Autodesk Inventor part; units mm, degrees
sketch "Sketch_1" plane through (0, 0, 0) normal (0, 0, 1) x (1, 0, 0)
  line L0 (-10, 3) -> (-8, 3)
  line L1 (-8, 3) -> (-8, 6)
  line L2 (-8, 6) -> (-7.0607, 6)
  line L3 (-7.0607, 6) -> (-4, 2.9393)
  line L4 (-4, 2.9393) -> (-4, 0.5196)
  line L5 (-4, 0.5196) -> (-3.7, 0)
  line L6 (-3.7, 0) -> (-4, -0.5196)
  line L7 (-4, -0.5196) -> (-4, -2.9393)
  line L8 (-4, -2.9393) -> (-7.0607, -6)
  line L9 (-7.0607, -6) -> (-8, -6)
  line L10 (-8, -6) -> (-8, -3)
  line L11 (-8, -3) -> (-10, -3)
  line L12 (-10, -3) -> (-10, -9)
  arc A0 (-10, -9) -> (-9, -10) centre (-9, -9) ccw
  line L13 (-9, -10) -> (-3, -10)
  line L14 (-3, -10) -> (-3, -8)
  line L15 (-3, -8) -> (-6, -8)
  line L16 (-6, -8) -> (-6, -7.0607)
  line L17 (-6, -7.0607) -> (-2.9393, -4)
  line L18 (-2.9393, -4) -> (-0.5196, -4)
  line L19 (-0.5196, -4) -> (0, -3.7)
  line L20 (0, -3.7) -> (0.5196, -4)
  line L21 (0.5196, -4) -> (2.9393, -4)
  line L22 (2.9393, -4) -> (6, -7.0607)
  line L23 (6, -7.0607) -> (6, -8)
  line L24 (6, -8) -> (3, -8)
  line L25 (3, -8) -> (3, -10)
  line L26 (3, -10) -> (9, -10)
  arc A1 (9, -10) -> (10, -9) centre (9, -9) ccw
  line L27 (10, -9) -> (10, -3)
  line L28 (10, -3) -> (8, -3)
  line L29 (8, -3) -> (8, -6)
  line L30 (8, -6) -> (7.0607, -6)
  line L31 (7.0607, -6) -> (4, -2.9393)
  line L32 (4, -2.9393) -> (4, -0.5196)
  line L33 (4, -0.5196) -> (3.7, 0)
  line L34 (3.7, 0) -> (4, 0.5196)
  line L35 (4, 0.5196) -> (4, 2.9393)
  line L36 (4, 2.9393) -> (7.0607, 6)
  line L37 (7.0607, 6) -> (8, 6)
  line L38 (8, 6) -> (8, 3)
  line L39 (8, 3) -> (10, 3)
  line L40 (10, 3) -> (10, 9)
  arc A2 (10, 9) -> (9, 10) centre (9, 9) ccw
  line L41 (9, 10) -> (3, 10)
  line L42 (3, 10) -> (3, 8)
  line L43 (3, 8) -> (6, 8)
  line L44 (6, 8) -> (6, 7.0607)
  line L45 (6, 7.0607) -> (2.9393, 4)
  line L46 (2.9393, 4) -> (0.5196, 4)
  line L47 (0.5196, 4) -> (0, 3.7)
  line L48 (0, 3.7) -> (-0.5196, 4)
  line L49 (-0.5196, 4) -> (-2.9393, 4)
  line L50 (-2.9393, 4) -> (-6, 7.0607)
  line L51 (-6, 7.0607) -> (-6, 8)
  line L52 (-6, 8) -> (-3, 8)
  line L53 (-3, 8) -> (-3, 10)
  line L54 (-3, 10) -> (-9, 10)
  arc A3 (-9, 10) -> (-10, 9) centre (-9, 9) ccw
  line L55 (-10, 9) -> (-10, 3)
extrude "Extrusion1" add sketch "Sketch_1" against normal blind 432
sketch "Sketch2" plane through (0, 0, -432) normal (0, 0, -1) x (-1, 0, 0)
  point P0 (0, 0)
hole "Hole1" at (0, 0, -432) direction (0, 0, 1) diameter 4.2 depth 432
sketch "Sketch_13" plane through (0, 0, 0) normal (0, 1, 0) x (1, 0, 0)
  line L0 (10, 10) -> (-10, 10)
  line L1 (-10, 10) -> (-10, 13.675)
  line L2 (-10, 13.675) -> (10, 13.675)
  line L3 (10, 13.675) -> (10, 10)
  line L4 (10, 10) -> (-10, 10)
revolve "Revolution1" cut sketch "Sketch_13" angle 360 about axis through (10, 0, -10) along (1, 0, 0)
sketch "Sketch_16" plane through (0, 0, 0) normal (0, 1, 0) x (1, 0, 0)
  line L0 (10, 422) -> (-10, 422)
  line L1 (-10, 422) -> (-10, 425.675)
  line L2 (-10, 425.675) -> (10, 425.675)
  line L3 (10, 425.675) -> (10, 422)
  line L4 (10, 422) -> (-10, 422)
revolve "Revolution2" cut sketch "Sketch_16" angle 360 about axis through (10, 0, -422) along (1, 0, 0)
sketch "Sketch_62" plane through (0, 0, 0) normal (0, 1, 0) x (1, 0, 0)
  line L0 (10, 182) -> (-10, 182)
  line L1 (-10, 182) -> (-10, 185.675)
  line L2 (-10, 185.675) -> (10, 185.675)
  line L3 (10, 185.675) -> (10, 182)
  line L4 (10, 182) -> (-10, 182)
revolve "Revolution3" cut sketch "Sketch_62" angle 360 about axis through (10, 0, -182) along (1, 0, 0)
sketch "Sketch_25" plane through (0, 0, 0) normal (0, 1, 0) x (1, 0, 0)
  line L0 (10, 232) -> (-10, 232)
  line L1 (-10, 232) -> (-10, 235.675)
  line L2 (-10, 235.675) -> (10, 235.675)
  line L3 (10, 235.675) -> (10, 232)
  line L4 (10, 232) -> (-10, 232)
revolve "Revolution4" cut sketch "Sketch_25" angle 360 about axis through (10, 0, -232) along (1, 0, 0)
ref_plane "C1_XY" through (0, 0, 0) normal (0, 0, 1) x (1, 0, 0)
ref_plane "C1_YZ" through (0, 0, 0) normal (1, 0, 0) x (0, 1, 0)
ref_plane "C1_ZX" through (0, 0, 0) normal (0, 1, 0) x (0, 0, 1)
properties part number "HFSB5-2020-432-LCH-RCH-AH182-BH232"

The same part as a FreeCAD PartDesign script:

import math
import FreeCAD as App
import Part
import Sketcher

V = App.Vector
Q = App.Units.Quantity

doc = App.newDocument("Part")
body = doc.addObject("PartDesign::Body", "Body")

sketch1 = body.newObject("Sketcher::SketchObject", "Sketch")
sketch1.AttachmentSupport = (doc.getObject("XY_Plane"), [""])
sketch1.MapMode = "FlatFace"
sketch1.addGeometry(Part.LineSegment(V(-10, 9, 0), V(-10, 3, 0)), False)
sketch1.addGeometry(Part.LineSegment(V(-10, 3, 0), V(-8, 3, 0)), False)
sketch1.addGeometry(Part.LineSegment(V(-8, 3, 0), V(-8, 6, 0)), False)
sketch1.addGeometry(Part.LineSegment(V(-8, 6, 0), V(-7.0607, 6, 0)), False)
sketch1.addGeometry(Part.LineSegment(V(-7.0607, 6, 0), V(-4, 2.9393, 0)), False)
sketch1.addGeometry(Part.LineSegment(V(-4, 2.9393, 0), V(-4, 0.5196, 0)), False)
sketch1.addGeometry(Part.LineSegment(V(-4, 0.5196, 0), V(-3.7, 0, 0)), False)
sketch1.addGeometry(Part.LineSegment(V(-3.7, 0, 0), V(-4, -0.5196, 0)), False)
sketch1.addGeometry(Part.LineSegment(V(-4, -0.5196, 0), V(-4, -2.9393, 0)), False)
sketch1.addGeometry(Part.LineSegment(V(-4, -2.9393, 0), V(-7.0607, -6, 0)), False)
sketch1.addGeometry(Part.LineSegment(V(-7.0607, -6, 0), V(-8, -6, 0)), False)
sketch1.addGeometry(Part.LineSegment(V(-8, -6, 0), V(-8, -3, 0)), False)
sketch1.addGeometry(Part.LineSegment(V(-8, -3, 0), V(-10, -3, 0)), False)
sketch1.addGeometry(Part.LineSegment(V(-10, -3, 0), V(-10, -9, 0)), False)
sketch1.addGeometry(Part.ArcOfCircle(Part.Circle(V(-9, -9, 0), V(0, 0, 1), 1), math.radians(180), math.radians(270)), False)
sketch1.addGeometry(Part.LineSegment(V(-9, -10, 0), V(-3, -10, 0)), False)
sketch1.addGeometry(Part.LineSegment(V(-3, -10, 0), V(-3, -8, 0)), False)
sketch1.addGeometry(Part.LineSegment(V(-3, -8, 0), V(-6, -8, 0)), False)
sketch1.addGeometry(Part.LineSegment(V(-6, -8, 0), V(-6, -7.0607, 0)), False)
sketch1.addGeometry(Part.LineSegment(V(-6, -7.0607, 0), V(-2.9393, -4, 0)), False)
sketch1.addGeometry(Part.LineSegment(V(-2.9393, -4, 0), V(-0.5196, -4, 0)), False)
sketch1.addGeometry(Part.LineSegment(V(-0.5196, -4, 0), V(0, -3.7, 0)), False)
sketch1.addGeometry(Part.LineSegment(V(0, -3.7, 0), V(0.5196, -4, 0)), False)
sketch1.addGeometry(Part.LineSegment(V(0.5196, -4, 0), V(2.9393, -4, 0)), False)
sketch1.addGeometry(Part.LineSegment(V(2.9393, -4, 0), V(6, -7.0607, 0)), False)
sketch1.addGeometry(Part.LineSegment(V(6, -7.0607, 0), V(6, -8, 0)), False)
sketch1.addGeometry(Part.LineSegment(V(6, -8, 0), V(3, -8, 0)), False)
sketch1.addGeometry(Part.LineSegment(V(3, -8, 0), V(3, -10, 0)), False)
sketch1.addGeometry(Part.LineSegment(V(3, -10, 0), V(9, -10, 0)), False)
sketch1.addGeometry(Part.ArcOfCircle(Part.Circle(V(9, -9, 0), V(0, 0, 1), 1), math.radians(-90), math.radians(0)), False)
sketch1.addGeometry(Part.LineSegment(V(10, -9, 0), V(10, -3, 0)), False)
sketch1.addGeometry(Part.LineSegment(V(10, -3, 0), V(8, -3, 0)), False)
sketch1.addGeometry(Part.LineSegment(V(8, -3, 0), V(8, -6, 0)), False)
sketch1.addGeometry(Part.LineSegment(V(8, -6, 0), V(7.0607, -6, 0)), False)
sketch1.addGeometry(Part.LineSegment(V(7.0607, -6, 0), V(4, -2.9393, 0)), False)
sketch1.addGeometry(Part.LineSegment(V(4, -2.9393, 0), V(4, -0.5196, 0)), False)
sketch1.addGeometry(Part.LineSegment(V(4, -0.5196, 0), V(3.7, 0, 0)), False)
sketch1.addGeometry(Part.LineSegment(V(3.7, 0, 0), V(4, 0.5196, 0)), False)
sketch1.addGeometry(Part.LineSegment(V(4, 0.5196, 0), V(4, 2.9393, 0)), False)
sketch1.addGeometry(Part.LineSegment(V(4, 2.9393, 0), V(7.0607, 6, 0)), False)
sketch1.addGeometry(Part.LineSegment(V(7.0607, 6, 0), V(8, 6, 0)), False)
sketch1.addGeometry(Part.LineSegment(V(8, 6, 0), V(8, 3, 0)), False)
sketch1.addGeometry(Part.LineSegment(V(8, 3, 0), V(10, 3, 0)), False)
sketch1.addGeometry(Part.LineSegment(V(10, 3, 0), V(10, 9, 0)), False)
sketch1.addGeometry(Part.ArcOfCircle(Part.Circle(V(9, 9, 0), V(0, 0, 1), 1), math.radians(0), math.radians(90)), False)
sketch1.addGeometry(Part.LineSegment(V(9, 10, 0), V(3, 10, 0)), False)
sketch1.addGeometry(Part.LineSegment(V(3, 10, 0), V(3, 8, 0)), False)
sketch1.addGeometry(Part.LineSegment(V(3, 8, 0), V(6, 8, 0)), False)
sketch1.addGeometry(Part.LineSegment(V(6, 8, 0), V(6, 7.0607, 0)), False)
sketch1.addGeometry(Part.LineSegment(V(6, 7.0607, 0), V(2.9393, 4, 0)), False)
sketch1.addGeometry(Part.LineSegment(V(2.9393, 4, 0), V(0.5196, 4, 0)), False)
sketch1.addGeometry(Part.LineSegment(V(0.5196, 4, 0), V(0, 3.7, 0)), False)
sketch1.addGeometry(Part.LineSegment(V(0, 3.7, 0), V(-0.5196, 4, 0)), False)
sketch1.addGeometry(Part.LineSegment(V(-0.5196, 4, 0), V(-2.9393, 4, 0)), False)
sketch1.addGeometry(Part.LineSegment(V(-2.9393, 4, 0), V(-6, 7.0607, 0)), False)
sketch1.addGeometry(Part.LineSegment(V(-6, 7.0607, 0), V(-6, 8, 0)), False)
sketch1.addGeometry(Part.LineSegment(V(-6, 8, 0), V(-3, 8, 0)), False)
sketch1.addGeometry(Part.LineSegment(V(-3, 8, 0), V(-3, 10, 0)), False)
sketch1.addGeometry(Part.LineSegment(V(-3, 10, 0), V(-9, 10, 0)), False)
sketch1.addGeometry(Part.ArcOfCircle(Part.Circle(V(-9, 9, 0), V(0, 0, 1), 1), math.radians(90), math.radians(180)), False)
sketch1.addConstraint(Sketcher.Constraint("Coincident", 0, 2, 1, 1))
sketch1.addConstraint(Sketcher.Constraint("Coincident", 1, 2, 2, 1))
sketch1.addConstraint(Sketcher.Constraint("Coincident", 2, 2, 3, 1))
sketch1.addConstraint(Sketcher.Constraint("Coincident", 3, 2, 4, 1))
sketch1.addConstraint(Sketcher.Constraint("Coincident", 4, 2, 5, 1))
sketch1.addConstraint(Sketcher.Constraint("Coincident", 5, 2, 6, 1))
sketch1.addConstraint(Sketcher.Constraint("Coincident", 6, 2, 7, 1))
sketch1.addConstraint(Sketcher.Constraint("Coincident", 7, 2, 8, 1))
sketch1.addConstraint(Sketcher.Constraint("Coincident", 8, 2, 9, 1))
sketch1.addConstraint(Sketcher.Constraint("Coincident", 9, 2, 10, 1))
sketch1.addConstraint(Sketcher.Constraint("Coincident", 10, 2, 11, 1))
sketch1.addConstraint(Sketcher.Constraint("Coincident", 11, 2, 12, 1))
sketch1.addConstraint(Sketcher.Constraint("Coincident", 12, 2, 13, 1))
sketch1.addConstraint(Sketcher.Constraint("Tangent", 13, 2, 14, 1))
sketch1.addConstraint(Sketcher.Constraint("Tangent", 14, 2, 15, 1))
sketch1.addConstraint(Sketcher.Constraint("Coincident", 15, 2, 16, 1))
sketch1.addConstraint(Sketcher.Constraint("Coincident", 16, 2, 17, 1))
sketch1.addConstraint(Sketcher.Constraint("Coincident", 17, 2, 18, 1))
sketch1.addConstraint(Sketcher.Constraint("Coincident", 18, 2, 19, 1))
sketch1.addConstraint(Sketcher.Constraint("Coincident", 19, 2, 20, 1))
sketch1.addConstraint(Sketcher.Constraint("Coincident", 20, 2, 21, 1))
sketch1.addConstraint(Sketcher.Constraint("Coincident", 21, 2, 22, 1))
sketch1.addConstraint(Sketcher.Constraint("Coincident", 22, 2, 23, 1))
sketch1.addConstraint(Sketcher.Constraint("Coincident", 23, 2, 24, 1))
sketch1.addConstraint(Sketcher.Constraint("Coincident", 24, 2, 25, 1))
sketch1.addConstraint(Sketcher.Constraint("Coincident", 25, 2, 26, 1))
sketch1.addConstraint(Sketcher.Constraint("Coincident", 26, 2, 27, 1))
sketch1.addConstraint(Sketcher.Constraint("Coincident", 27, 2, 28, 1))
sketch1.addConstraint(Sketcher.Constraint("Tangent", 28, 2, 29, 1))
sketch1.addConstraint(Sketcher.Constraint("Tangent", 29, 2, 30, 1))
sketch1.addConstraint(Sketcher.Constraint("Coincident", 30, 2, 31, 1))
sketch1.addConstraint(Sketcher.Constraint("Coincident", 31, 2, 32, 1))
sketch1.addConstraint(Sketcher.Constraint("Coincident", 32, 2, 33, 1))
sketch1.addConstraint(Sketcher.Constraint("Coincident", 33, 2, 34, 1))
sketch1.addConstraint(Sketcher.Constraint("Coincident", 34, 2, 35, 1))
sketch1.addConstraint(Sketcher.Constraint("Coincident", 35, 2, 36, 1))
sketch1.addConstraint(Sketcher.Constraint("Coincident", 36, 2, 37, 1))
sketch1.addConstraint(Sketcher.Constraint("Coincident", 37, 2, 38, 1))
sketch1.addConstraint(Sketcher.Constraint("Coincident", 38, 2, 39, 1))
sketch1.addConstraint(Sketcher.Constraint("Coincident", 39, 2, 40, 1))
sketch1.addConstraint(Sketcher.Constraint("Coincident", 40, 2, 41, 1))
sketch1.addConstraint(Sketcher.Constraint("Coincident", 41, 2, 42, 1))
sketch1.addConstraint(Sketcher.Constraint("Coincident", 42, 2, 43, 1))
sketch1.addConstraint(Sketcher.Constraint("Tangent", 43, 2, 44, 1))
sketch1.addConstraint(Sketcher.Constraint("Tangent", 44, 2, 45, 1))
sketch1.addConstraint(Sketcher.Constraint("Coincident", 45, 2, 46, 1))
sketch1.addConstraint(Sketcher.Constraint("Coincident", 46, 2, 47, 1))
sketch1.addConstraint(Sketcher.Constraint("Coincident", 47, 2, 48, 1))
sketch1.addConstraint(Sketcher.Constraint("Coincident", 48, 2, 49, 1))
sketch1.addConstraint(Sketcher.Constraint("Coincident", 49, 2, 50, 1))
sketch1.addConstraint(Sketcher.Constraint("Coincident", 50, 2, 51, 1))
sketch1.addConstraint(Sketcher.Constraint("Coincident", 51, 2, 52, 1))
sketch1.addConstraint(Sketcher.Constraint("Coincident", 52, 2, 53, 1))
sketch1.addConstraint(Sketcher.Constraint("Coincident", 53, 2, 54, 1))
sketch1.addConstraint(Sketcher.Constraint("Coincident", 54, 2, 55, 1))
sketch1.addConstraint(Sketcher.Constraint("Coincident", 55, 2, 56, 1))
sketch1.addConstraint(Sketcher.Constraint("Coincident", 56, 2, 57, 1))
sketch1.addConstraint(Sketcher.Constraint("Coincident", 57, 2, 58, 1))
sketch1.addConstraint(Sketcher.Constraint("Tangent", 58, 2, 59, 1))
sketch1.addConstraint(Sketcher.Constraint("Tangent", 59, 2, 0, 1))
sketch1.addConstraint(Sketcher.Constraint("Vertical", 0))
sketch1.addConstraint(Sketcher.Constraint("Horizontal", 1))
sketch1.addConstraint(Sketcher.Constraint("Vertical", 2))
sketch1.addConstraint(Sketcher.Constraint("Horizontal", 3))
sketch1.addConstraint(Sketcher.Constraint("Vertical", 5))
sketch1.addConstraint(Sketcher.Constraint("Vertical", 8))
sketch1.addConstraint(Sketcher.Constraint("Horizontal", 10))
sketch1.addConstraint(Sketcher.Constraint("Vertical", 11))
sketch1.addConstraint(Sketcher.Constraint("Horizontal", 12))
sketch1.addConstraint(Sketcher.Constraint("Vertical", 13))
sketch1.addConstraint(Sketcher.Constraint("Horizontal", 15))
sketch1.addConstraint(Sketcher.Constraint("Vertical", 16))
sketch1.addConstraint(Sketcher.Constraint("Horizontal", 17))
sketch1.addConstraint(Sketcher.Constraint("Vertical", 18))
sketch1.addConstraint(Sketcher.Constraint("Horizontal", 20))
sketch1.addConstraint(Sketcher.Constraint("Horizontal", 23))
sketch1.addConstraint(Sketcher.Constraint("Vertical", 25))
sketch1.addConstraint(Sketcher.Constraint("Horizontal", 26))
sketch1.addConstraint(Sketcher.Constraint("Vertical", 27))
sketch1.addConstraint(Sketcher.Constraint("Horizontal", 28))
sketch1.addConstraint(Sketcher.Constraint("Vertical", 30))
sketch1.addConstraint(Sketcher.Constraint("Horizontal", 31))
sketch1.addConstraint(Sketcher.Constraint("Vertical", 32))
sketch1.addConstraint(Sketcher.Constraint("Horizontal", 33))
sketch1.addConstraint(Sketcher.Constraint("Vertical", 35))
sketch1.addConstraint(Sketcher.Constraint("Vertical", 38))
sketch1.addConstraint(Sketcher.Constraint("Horizontal", 40))
sketch1.addConstraint(Sketcher.Constraint("Vertical", 41))
sketch1.addConstraint(Sketcher.Constraint("Horizontal", 42))
sketch1.addConstraint(Sketcher.Constraint("Vertical", 43))
sketch1.addConstraint(Sketcher.Constraint("Horizontal", 45))
sketch1.addConstraint(Sketcher.Constraint("Vertical", 46))
sketch1.addConstraint(Sketcher.Constraint("Horizontal", 47))
sketch1.addConstraint(Sketcher.Constraint("Vertical", 48))
sketch1.addConstraint(Sketcher.Constraint("Horizontal", 50))
sketch1.addConstraint(Sketcher.Constraint("Horizontal", 53))
sketch1.addConstraint(Sketcher.Constraint("Vertical", 55))
sketch1.addConstraint(Sketcher.Constraint("Horizontal", 56))
sketch1.addConstraint(Sketcher.Constraint("Vertical", 57))
sketch1.addConstraint(Sketcher.Constraint("Horizontal", 58))
sketch1.addConstraint(Sketcher.Constraint("Equal", 14, 29))
sketch1.addConstraint(Sketcher.Constraint("Equal", 29, 44))
sketch1.addConstraint(Sketcher.Constraint("Equal", 44, 59))
sketch1.addConstraint(Sketcher.Constraint("Symmetric", 14, 3, 44, 3, -1, 1))
sketch1.addConstraint(Sketcher.Constraint("Symmetric", 29, 3, 59, 3, -1, 1))
sketch1.addConstraint(Sketcher.Constraint("Symmetric", 1, 2, 31, 2, -1, 1))
sketch1.addConstraint(Sketcher.Constraint("Symmetric", 3, 2, 33, 2, -1, 1))
sketch1.addConstraint(Sketcher.Constraint("Symmetric", 4, 2, 34, 2, -1, 1))
sketch1.addConstraint(Sketcher.Constraint("Symmetric", 6, 2, 36, 2, -1, 1))
sketch1.addConstraint(Sketcher.Constraint("Symmetric", 7, 2, 37, 2, -1, 1))
sketch1.addConstraint(Sketcher.Constraint("Symmetric", 9, 2, 39, 2, -1, 1))
sketch1.addConstraint(Sketcher.Constraint("Symmetric", 11, 2, 41, 2, -1, 1))
sketch1.addConstraint(Sketcher.Constraint("Symmetric", 16, 2, 46, 2, -1, 1))
sketch1.addConstraint(Sketcher.Constraint("Symmetric", 18, 2, 48, 2, -1, 1))
sketch1.addConstraint(Sketcher.Constraint("Symmetric", 19, 2, 49, 2, -1, 1))
sketch1.addConstraint(Sketcher.Constraint("Symmetric", 21, 2, 51, 2, -1, 1))
sketch1.addConstraint(Sketcher.Constraint("Symmetric", 22, 2, 52, 2, -1, 1))
sketch1.addConstraint(Sketcher.Constraint("Symmetric", 24, 2, 54, 2, -1, 1))
sketch1.addConstraint(Sketcher.Constraint("Symmetric", 26, 2, 56, 2, -1, 1))
sketch1.addConstraint(Sketcher.Constraint("Symmetric", 14, 3, 29, 3, -2))
sketch1.addConstraint(Sketcher.Constraint("Symmetric", 20, 2, 22, 2, -2))
sketch1.addConstraint(Sketcher.Constraint("Symmetric", 18, 2, 24, 2, -2))
sketch1.addConstraint(Sketcher.Constraint("Symmetric", 16, 2, 26, 2, -2))
sketch1.addConstraint(Sketcher.Constraint("Symmetric", 11, 2, 31, 2, -2))
sketch1.addConstraint(Sketcher.Constraint("Symmetric", 9, 2, 33, 2, -2))
sketch1.addConstraint(Sketcher.Constraint("Symmetric", 8, 2, 34, 2, -2))
sketch1.addConstraint(Sketcher.Constraint("PointOnObject", 6, 2, -1))
sketch1.addConstraint(Sketcher.Constraint("PointOnObject", 21, 2, -2))
sketch1.addConstraint(Sketcher.Constraint("Perpendicular", 4, 9))
sketch1.addConstraint(Sketcher.Constraint("Parallel", 9, 19))
sketch1.addConstraint(Sketcher.Constraint("Perpendicular", 6, 21))
sketch1.addConstraint(Sketcher.Constraint("Perpendicular", 7, 22))
sketch1.addConstraint(Sketcher.Constraint("Perpendicular", 19, 24))
sketch1.addConstraint(Sketcher.Constraint("Perpendicular", 21, 36))
sketch1.addConstraint(Sketcher.Constraint("Perpendicular", 34, 39))
sketch1.addConstraint(Sketcher.Constraint("Perpendicular", 36, 51))
sketch1.addConstraint(Sketcher.Constraint("Perpendicular", 49, 54))
sketch1.addConstraint(Sketcher.Constraint("Equal", 58, 0))
sketch1.addConstraint(Sketcher.Constraint("Equal", 56, 2))
sketch1.addConstraint(Sketcher.Constraint("Equal", 53, 5))
sketch1.addConstraint(Sketcher.Constraint("Equal", 42, 16))
sketch1.addConstraint(Sketcher.Constraint("Equal", 40, 18))
sketch1.addConstraint(Sketcher.Constraint("Equal", 9, 19))
sketch1.addConstraint(Sketcher.Constraint("Equal", 7, 21))
sketch1.addConstraint(Sketcher.Constraint("Radius", 14, Q("1 mm")))
sketch1.addConstraint(Sketcher.Constraint("DistanceX", 1, 1, 1, 2, Q("2 mm")))
sketch1.addConstraint(Sketcher.Constraint("DistanceX", 15, 1, 15, 2, Q("6 mm")))
sketch1.addConstraint(Sketcher.Constraint("DistanceX", 17, 2, 17, 1, Q("3 mm")))
sketch1.addConstraint(Sketcher.Constraint("Angle", 6, Q("-59.9993 deg")))
sketch1.addConstraint(Sketcher.Constraint("DistanceX", 14, 3, -1, 1, Q("9 mm")))
sketch1.addConstraint(Sketcher.Constraint("DistanceX", 4, 2, -1, 1, Q("4 mm")))
sketch1.addConstraint(Sketcher.Constraint("Distance", 6, Q("0.6 mm")))
sketch1.addConstraint(Sketcher.Constraint("DistanceX", 3, 1, 3, 2, Q("0.9393 mm")))
pad1 = body.newObject("PartDesign::Pad", "Pad")
pad1.Profile = sketch1
pad1.Length = 432
pad1.Reversed = True

sketch2 = body.newObject("Sketcher::SketchObject", "Sketch001")
sketch2.AttachmentSupport = (doc.getObject("XY_Plane"), [""])
sketch2.MapMode = "FlatFace"
sketch2.AttachmentOffset = App.Placement(V(0, 0, -432), App.Rotation())
sketch2.addGeometry(Part.Circle(V(0, 0, 0), V(0, 0, 1), 2.1), False)
sketch2.addConstraint(Sketcher.Constraint("Coincident", 0, 3, -1, 1))
sketch2.addConstraint(Sketcher.Constraint("Diameter", 0, Q("4.2 mm")))
doc.recompute()
hole = body.newObject("PartDesign::Hole", "Hole")
hole.Profile = sketch2
hole.ThreadType = "None"
hole.Diameter = 4.2
hole.DepthType = "Dimension"
hole.Depth = 432
hole.DrillPoint = "Flat"
hole.Reversed = True

sketch3 = body.newObject("Sketcher::SketchObject", "Sketch002")
sketch3.AttachmentSupport = (doc.getObject("XZ_Plane"), [""])
sketch3.MapMode = "FlatFace"
sketch3.addGeometry(Part.LineSegment(V(-10, -10, 0), V(10, -10, 0)), False)
sketch3.addGeometry(Part.LineSegment(V(10, -10, 0), V(10, -13.675, 0)), False)
sketch3.addGeometry(Part.LineSegment(V(10, -13.675, 0), V(-10, -13.675, 0)), False)
sketch3.addGeometry(Part.LineSegment(V(-10, -13.675, 0), V(-10, -10, 0)), False)
sketch3.addGeometry(Part.LineSegment(V(-10, -10, 0), V(10, -10, 0)), True)
sketch3.addConstraint(Sketcher.Constraint("Coincident", 0, 2, 1, 1))
sketch3.addConstraint(Sketcher.Constraint("Coincident", 1, 2, 2, 1))
sketch3.addConstraint(Sketcher.Constraint("Coincident", 2, 2, 3, 1))
sketch3.addConstraint(Sketcher.Constraint("Coincident", 3, 2, 0, 1))
sketch3.addConstraint(Sketcher.Constraint("Horizontal", 0))
sketch3.addConstraint(Sketcher.Constraint("Vertical", 1))
sketch3.addConstraint(Sketcher.Constraint("Horizontal", 2))
sketch3.addConstraint(Sketcher.Constraint("Vertical", 3))
sketch3.addConstraint(Sketcher.Constraint("Horizontal", 4))
sketch3.addConstraint(Sketcher.Constraint("Coincident", 4, 1, 3, 2))
sketch3.addConstraint(Sketcher.Constraint("Vertical", 1, 2, 4, 2))
sketch3.addConstraint(Sketcher.Constraint("DistanceX", 0, 1, 0, 2, Q("20 mm")))
sketch3.addConstraint(Sketcher.Constraint("DistanceX", -1, 1, 0, 2, Q("10 mm")))
sketch3.addConstraint(Sketcher.Constraint("DistanceY", 0, 2, -1, 1, Q("10 mm")))
sketch3.addConstraint(Sketcher.Constraint("DistanceY", 1, 2, 1, 1, Q("3.675 mm")))
groove = body.newObject("PartDesign::Groove", "Groove")
groove.Profile = sketch3
groove.ReferenceAxis = (sketch3, ["Axis0"])
groove.Angle = 360

sketch4 = body.newObject("Sketcher::SketchObject", "Sketch003")
sketch4.AttachmentSupport = (doc.getObject("XZ_Plane"), [""])
sketch4.MapMode = "FlatFace"
sketch4.addGeometry(Part.LineSegment(V(-10, -422, 0), V(10, -422, 0)), False)
sketch4.addGeometry(Part.LineSegment(V(10, -422, 0), V(10, -425.675, 0)), False)
sketch4.addGeometry(Part.LineSegment(V(10, -425.675, 0), V(-10, -425.675, 0)), False)
sketch4.addGeometry(Part.LineSegment(V(-10, -425.675, 0), V(-10, -422, 0)), False)
sketch4.addGeometry(Part.LineSegment(V(-10, -422, 0), V(10, -422, 0)), True)
sketch4.addConstraint(Sketcher.Constraint("Coincident", 0, 2, 1, 1))
sketch4.addConstraint(Sketcher.Constraint("Coincident", 1, 2, 2, 1))
sketch4.addConstraint(Sketcher.Constraint("Coincident", 2, 2, 3, 1))
sketch4.addConstraint(Sketcher.Constraint("Coincident", 3, 2, 0, 1))
sketch4.addConstraint(Sketcher.Constraint("Horizontal", 0))
sketch4.addConstraint(Sketcher.Constraint("Vertical", 1))
sketch4.addConstraint(Sketcher.Constraint("Horizontal", 2))
sketch4.addConstraint(Sketcher.Constraint("Vertical", 3))
sketch4.addConstraint(Sketcher.Constraint("Horizontal", 4))
sketch4.addConstraint(Sketcher.Constraint("Coincident", 4, 1, 3, 2))
sketch4.addConstraint(Sketcher.Constraint("Vertical", 1, 2, 4, 2))
sketch4.addConstraint(Sketcher.Constraint("DistanceX", 0, 1, 0, 2, Q("20 mm")))
sketch4.addConstraint(Sketcher.Constraint("DistanceX", -1, 1, 0, 2, Q("10 mm")))
sketch4.addConstraint(Sketcher.Constraint("DistanceY", 0, 2, -1, 1, Q("422 mm")))
sketch4.addConstraint(Sketcher.Constraint("DistanceY", 1, 2, 1, 1, Q("3.675 mm")))
groove2 = body.newObject("PartDesign::Groove", "Groove001")
groove2.Profile = sketch4
groove2.ReferenceAxis = (sketch4, ["Axis0"])
groove2.Angle = 360

sketch5 = body.newObject("Sketcher::SketchObject", "Sketch004")
sketch5.AttachmentSupport = (doc.getObject("XZ_Plane"), [""])
sketch5.MapMode = "FlatFace"
sketch5.addGeometry(Part.LineSegment(V(-10, -182, 0), V(10, -182, 0)), False)
sketch5.addGeometry(Part.LineSegment(V(10, -182, 0), V(10, -185.675, 0)), False)
sketch5.addGeometry(Part.LineSegment(V(10, -185.675, 0), V(-10, -185.675, 0)), False)
sketch5.addGeometry(Part.LineSegment(V(-10, -185.675, 0), V(-10, -182, 0)), False)
sketch5.addGeometry(Part.LineSegment(V(-10, -182, 0), V(10, -182, 0)), True)
sketch5.addConstraint(Sketcher.Constraint("Coincident", 0, 2, 1, 1))
sketch5.addConstraint(Sketcher.Constraint("Coincident", 1, 2, 2, 1))
sketch5.addConstraint(Sketcher.Constraint("Coincident", 2, 2, 3, 1))
sketch5.addConstraint(Sketcher.Constraint("Coincident", 3, 2, 0, 1))
sketch5.addConstraint(Sketcher.Constraint("Horizontal", 0))
sketch5.addConstraint(Sketcher.Constraint("Vertical", 1))
sketch5.addConstraint(Sketcher.Constraint("Horizontal", 2))
sketch5.addConstraint(Sketcher.Constraint("Vertical", 3))
sketch5.addConstraint(Sketcher.Constraint("Horizontal", 4))
sketch5.addConstraint(Sketcher.Constraint("Coincident", 4, 1, 3, 2))
sketch5.addConstraint(Sketcher.Constraint("Vertical", 1, 2, 4, 2))
sketch5.addConstraint(Sketcher.Constraint("DistanceX", 0, 1, 0, 2, Q("20 mm")))
sketch5.addConstraint(Sketcher.Constraint("DistanceX", -1, 1, 0, 2, Q("10 mm")))
sketch5.addConstraint(Sketcher.Constraint("DistanceY", 0, 2, -1, 1, Q("182 mm")))
sketch5.addConstraint(Sketcher.Constraint("DistanceY", 1, 2, 1, 1, Q("3.675 mm")))
groove3 = body.newObject("PartDesign::Groove", "Groove002")
groove3.Profile = sketch5
groove3.ReferenceAxis = (sketch5, ["Axis0"])
groove3.Angle = 360

sketch6 = body.newObject("Sketcher::SketchObject", "Sketch005")
sketch6.AttachmentSupport = (doc.getObject("XZ_Plane"), [""])
sketch6.MapMode = "FlatFace"
sketch6.addGeometry(Part.LineSegment(V(-10, -232, 0), V(10, -232, 0)), False)
sketch6.addGeometry(Part.LineSegment(V(10, -232, 0), V(10, -235.675, 0)), False)
sketch6.addGeometry(Part.LineSegment(V(10, -235.675, 0), V(-10, -235.675, 0)), False)
sketch6.addGeometry(Part.LineSegment(V(-10, -235.675, 0), V(-10, -232, 0)), False)
sketch6.addGeometry(Part.LineSegment(V(-10, -232, 0), V(10, -232, 0)), True)
sketch6.addConstraint(Sketcher.Constraint("Coincident", 0, 2, 1, 1))
sketch6.addConstraint(Sketcher.Constraint("Coincident", 1, 2, 2, 1))
sketch6.addConstraint(Sketcher.Constraint("Coincident", 2, 2, 3, 1))
sketch6.addConstraint(Sketcher.Constraint("Coincident", 3, 2, 0, 1))
sketch6.addConstraint(Sketcher.Constraint("Horizontal", 0))
sketch6.addConstraint(Sketcher.Constraint("Vertical", 1))
sketch6.addConstraint(Sketcher.Constraint("Horizontal", 2))
sketch6.addConstraint(Sketcher.Constraint("Vertical", 3))
sketch6.addConstraint(Sketcher.Constraint("Horizontal", 4))
sketch6.addConstraint(Sketcher.Constraint("Coincident", 4, 1, 3, 2))
sketch6.addConstraint(Sketcher.Constraint("Vertical", 1, 2, 4, 2))
sketch6.addConstraint(Sketcher.Constraint("DistanceX", 0, 1, 0, 2, Q("20 mm")))
sketch6.addConstraint(Sketcher.Constraint("DistanceX", -1, 1, 0, 2, Q("10 mm")))
sketch6.addConstraint(Sketcher.Constraint("DistanceY", 0, 2, -1, 1, Q("232 mm")))
sketch6.addConstraint(Sketcher.Constraint("DistanceY", 1, 2, 1, 1, Q("3.675 mm")))
groove4 = body.newObject("PartDesign::Groove", "Groove003")
groove4.Profile = sketch6
groove4.ReferenceAxis = (sketch6, ["Axis0"])
groove4.Angle = 360

doc.recompute()
